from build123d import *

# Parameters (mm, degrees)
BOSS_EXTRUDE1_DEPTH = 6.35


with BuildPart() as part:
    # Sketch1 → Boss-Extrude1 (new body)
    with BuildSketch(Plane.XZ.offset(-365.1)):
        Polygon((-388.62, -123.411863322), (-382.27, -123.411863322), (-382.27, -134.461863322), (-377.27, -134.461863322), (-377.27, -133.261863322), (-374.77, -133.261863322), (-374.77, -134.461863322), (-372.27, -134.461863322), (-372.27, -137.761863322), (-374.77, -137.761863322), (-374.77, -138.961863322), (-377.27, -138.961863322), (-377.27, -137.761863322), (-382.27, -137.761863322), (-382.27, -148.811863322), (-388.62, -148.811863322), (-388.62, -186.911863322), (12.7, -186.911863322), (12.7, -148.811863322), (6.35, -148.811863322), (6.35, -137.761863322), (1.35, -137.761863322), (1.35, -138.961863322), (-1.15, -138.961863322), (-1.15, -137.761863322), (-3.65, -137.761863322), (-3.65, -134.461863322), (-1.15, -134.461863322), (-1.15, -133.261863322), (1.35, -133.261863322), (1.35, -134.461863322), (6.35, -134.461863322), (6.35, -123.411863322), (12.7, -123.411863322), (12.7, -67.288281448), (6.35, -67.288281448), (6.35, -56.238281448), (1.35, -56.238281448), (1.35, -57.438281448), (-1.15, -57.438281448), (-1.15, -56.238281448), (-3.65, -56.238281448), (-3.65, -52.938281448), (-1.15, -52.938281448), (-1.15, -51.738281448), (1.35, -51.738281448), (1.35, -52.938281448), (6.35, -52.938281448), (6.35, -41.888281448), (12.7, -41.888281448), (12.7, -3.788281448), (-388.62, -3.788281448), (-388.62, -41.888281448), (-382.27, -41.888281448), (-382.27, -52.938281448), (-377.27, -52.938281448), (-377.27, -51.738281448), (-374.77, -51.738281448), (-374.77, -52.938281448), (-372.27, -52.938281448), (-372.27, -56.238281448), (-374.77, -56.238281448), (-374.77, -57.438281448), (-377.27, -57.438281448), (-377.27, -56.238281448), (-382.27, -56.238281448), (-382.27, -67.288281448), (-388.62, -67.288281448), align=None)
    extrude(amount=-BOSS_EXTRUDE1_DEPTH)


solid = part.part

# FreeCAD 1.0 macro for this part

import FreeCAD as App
import Part
import Sketcher

V = App.Vector
Q = App.Units.Quantity


def add_polygon(sketch, points):
    """Adds a closed chain of lines whose ends are joined by coincident constraints."""
    first, n = sketch.GeometryCount, len(points)
    for a, b in zip(points, points[1:] + points[:1]):
        sketch.addGeometry(Part.LineSegment(App.Vector(*a, 0), App.Vector(*b, 0)), False)
    for i in range(n):
        sketch.addConstraint(Sketcher.Constraint("Coincident", first + i, 2, first + (i + 1) % n, 1))

doc = App.newDocument("Part")
params = doc.addObject("Spreadsheet::Sheet", "Params")
for row, (alias, value) in enumerate([
    ("sketch1_width", "5 mm"),
    ("sketch1_width2", "2.5 mm"),
    ("sketch1_height", "1.2 mm"),
    ("sketch1_height2", "3.3 mm"),
    ("sketch1_height3", "38.1 mm"),
    ("pad1_length", "6.35 mm"),
], start=1):
    params.set(f"A{row}", alias)
    params.set(f"B{row}", "=" + value)
    params.setAlias(f"B{row}", alias)

body = doc.addObject("PartDesign::Body", "Body")

# Sketch on XZ plane
sketch1 = body.newObject("Sketcher::SketchObject", "Sketch")
sketch1.AttachmentSupport = (doc.getObject("XZ_Plane"), [""])
sketch1.MapMode = "FlatFace"
sketch1.AttachmentOffset = App.Placement(V(0, 0, -365.1), App.Rotation())
add_polygon(sketch1, [(-388.62, -123.411863), (-382.27, -123.411863), (-382.27, -134.461863), (-377.27, -134.461863), (-377.27, -133.261863), (-374.77, -133.261863), (-374.77, -134.461863), (-372.27, -134.461863), (-372.27, -137.761863), (-374.77, -137.761863), (-374.77, -138.961863), (-377.27, -138.961863), (-377.27, -137.761863), (-382.27, -137.761863), (-382.27, -148.811863), (-388.62, -148.811863), (-388.62, -186.911863), (12.7, -186.911863), (12.7, -148.811863), (6.35, -148.811863), (6.35, -137.761863), (1.35, -137.761863), (1.35, -138.961863), (-1.15, -138.961863), (-1.15, -137.761863), (-3.65, -137.761863), (-3.65, -134.461863), (-1.15, -134.461863), (-1.15, -133.261863), (1.35, -133.261863), (1.35, -134.461863), (6.35, -134.461863), (6.35, -123.411863), (12.7, -123.411863), (12.7, -67.288281), (6.35, -67.288281), (6.35, -56.238281), (1.35, -56.238281), (1.35, -57.438281), (-1.15, -57.438281), (-1.15, -56.238281), (-3.65, -56.238281), (-3.65, -52.938281), (-1.15, -52.938281), (-1.15, -51.738281), (1.35, -51.738281), (1.35, -52.938281), (6.35, -52.938281), (6.35, -41.888281), (12.7, -41.888281), (12.7, -3.788281), (-388.62, -3.788281), (-388.62, -41.888281), (-382.27, -41.888281), (-382.27, -52.938281), (-377.27, -52.938281), (-377.27, -51.738281), (-374.77, -51.738281), (-374.77, -52.938281), (-372.27, -52.938281), (-372.27, -56.238281), (-374.77, -56.238281), (-374.77, -57.438281), (-377.27, -57.438281), (-377.27, -56.238281), (-382.27, -56.238281), (-382.27, -67.288281), (-388.62, -67.288281)])  # lines 0-67
sketch1.addConstraint(Sketcher.Constraint("Horizontal", 0))
sketch1.addConstraint(Sketcher.Constraint("Vertical", 1))
sketch1.addConstraint(Sketcher.Constraint("Horizontal", 2))
sketch1.addConstraint(Sketcher.Constraint("Vertical", 3))
sketch1.addConstraint(Sketcher.Constraint("Horizontal", 4))
sketch1.addConstraint(Sketcher.Constraint("Vertical", 5))
sketch1.addConstraint(Sketcher.Constraint("Horizontal", 6))
sketch1.addConstraint(Sketcher.Constraint("Vertical", 7))
sketch1.addConstraint(Sketcher.Constraint("Horizontal", 8))
sketch1.addConstraint(Sketcher.Constraint("Vertical", 9))
sketch1.addConstraint(Sketcher.Constraint("Horizontal", 10))
sketch1.addConstraint(Sketcher.Constraint("Vertical", 11))
sketch1.addConstraint(Sketcher.Constraint("Horizontal", 12))
sketch1.addConstraint(Sketcher.Constraint("Vertical", 13))
sketch1.addConstraint(Sketcher.Constraint("Horizontal", 14))
sketch1.addConstraint(Sketcher.Constraint("Vertical", 15))
sketch1.addConstraint(Sketcher.Constraint("Horizontal", 16))
sketch1.addConstraint(Sketcher.Constraint("Vertical", 17))
sketch1.addConstraint(Sketcher.Constraint("Horizontal", 18))
sketch1.addConstraint(Sketcher.Constraint("Vertical", 19))
sketch1.addConstraint(Sketcher.Constraint("Horizontal", 20))
sketch1.addConstraint(Sketcher.Constraint("Vertical", 21))
sketch1.addConstraint(Sketcher.Constraint("Horizontal", 22))
sketch1.addConstraint(Sketcher.Constraint("Vertical", 23))
sketch1.addConstraint(Sketcher.Constraint("Horizontal", 24))
sketch1.addConstraint(Sketcher.Constraint("Vertical", 25))
sketch1.addConstraint(Sketcher.Constraint("Horizontal", 26))
sketch1.addConstraint(Sketcher.Constraint("Vertical", 27))
sketch1.addConstraint(Sketcher.Constraint("Horizontal", 28))
sketch1.addConstraint(Sketcher.Constraint("Vertical", 29))
sketch1.addConstraint(Sketcher.Constraint("Horizontal", 30))
sketch1.addConstraint(Sketcher.Constraint("Vertical", 31))
sketch1.addConstraint(Sketcher.Constraint("Horizontal", 32))
sketch1.addConstraint(Sketcher.Constraint("Vertical", 33))
sketch1.addConstraint(Sketcher.Constraint("Horizontal", 34))
sketch1.addConstraint(Sketcher.Constraint("Vertical", 35))
sketch1.addConstraint(Sketcher.Constraint("Horizontal", 36))
sketch1.addConstraint(Sketcher.Constraint("Vertical", 37))
sketch1.addConstraint(Sketcher.Constraint("Horizontal", 38))
sketch1.addConstraint(Sketcher.Constraint("Vertical", 39))
sketch1.addConstraint(Sketcher.Constraint("Horizontal", 40))
sketch1.addConstraint(Sketcher.Constraint("Vertical", 41))
sketch1.addConstraint(Sketcher.Constraint("Horizontal", 42))
sketch1.addConstraint(Sketcher.Constraint("Vertical", 43))
sketch1.addConstraint(Sketcher.Constraint("Horizontal", 44))
sketch1.addConstraint(Sketcher.Constraint("Vertical", 45))
sketch1.addConstraint(Sketcher.Constraint("Horizontal", 46))
sketch1.addConstraint(Sketcher.Constraint("Vertical", 47))
sketch1.addConstraint(Sketcher.Constraint("Horizontal", 48))
sketch1.addConstraint(Sketcher.Constraint("Vertical", 49))
sketch1.addConstraint(Sketcher.Constraint("Horizontal", 50))
sketch1.addConstraint(Sketcher.Constraint("Vertical", 51))
sketch1.addConstraint(Sketcher.Constraint("Horizontal", 52))
sketch1.addConstraint(Sketcher.Constraint("Vertical", 53))
sketch1.addConstraint(Sketcher.Constraint("Horizontal", 54))
sketch1.addConstraint(Sketcher.Constraint("Vertical", 55))
sketch1.addConstraint(Sketcher.Constraint("Horizontal", 56))
sketch1.addConstraint(Sketcher.Constraint("Vertical", 57))
sketch1.addConstraint(Sketcher.Constraint("Horizontal", 58))
sketch1.addConstraint(Sketcher.Constraint("Vertical", 59))
sketch1.addConstraint(Sketcher.Constraint("Horizontal", 60))
sketch1.addConstraint(Sketcher.Constraint("Vertical", 61))
sketch1.addConstraint(Sketcher.Constraint("Horizontal", 62))
sketch1.addConstraint(Sketcher.Constraint("Vertical", 63))
sketch1.addConstraint(Sketcher.Constraint("Horizontal", 64))
sketch1.addConstraint(Sketcher.Constraint("Vertical", 65))
sketch1.addConstraint(Sketcher.Constraint("Horizontal", 66))
sketch1.addConstraint(Sketcher.Constraint("Vertical", 67))
sketch1.addConstraint(Sketcher.Constraint("Horizontal", 2, 2, 5, 2))
sketch1.addConstraint(Sketcher.Constraint("Horizontal", 8, 2, 11, 2))
sketch1.addConstraint(Sketcher.Constraint("Horizontal", 14, 2, 17, 2))
sketch1.addConstraint(Sketcher.Constraint("Horizontal", 12, 2, 19, 2))
sketch1.addConstraint(Sketcher.Constraint("Horizontal", 10, 2, 21, 2))
sketch1.addConstraint(Sketcher.Constraint("Horizontal", 20, 2, 23, 2))
sketch1.addConstraint(Sketcher.Constraint("Horizontal", 6, 2, 25, 2))
sketch1.addConstraint(Sketcher.Constraint("Horizontal", 4, 2, 27, 2))
sketch1.addConstraint(Sketcher.Constraint("Horizontal", 26, 2, 29, 2))
sketch1.addConstraint(Sketcher.Constraint("Horizontal", 0, 2, 31, 2))
sketch1.addConstraint(Sketcher.Constraint("Horizontal", 36, 2, 39, 2))
sketch1.addConstraint(Sketcher.Constraint("Horizontal", 42, 2, 45, 2))
sketch1.addConstraint(Sketcher.Constraint("Horizontal", 48, 2, 51, 2))
sketch1.addConstraint(Sketcher.Constraint("Horizontal", 46, 2, 53, 2))
sketch1.addConstraint(Sketcher.Constraint("Horizontal", 44, 2, 55, 2))
sketch1.addConstraint(Sketcher.Constraint("Horizontal", 54, 2, 57, 2))
sketch1.addConstraint(Sketcher.Constraint("Horizontal", 40, 2, 59, 2))
sketch1.addConstraint(Sketcher.Constraint("Horizontal", 38, 2, 61, 2))
sketch1.addConstraint(Sketcher.Constraint("Horizontal", 60, 2, 63, 2))
sketch1.addConstraint(Sketcher.Constraint("Horizontal", 34, 2, 65, 2))
sketch1.addConstraint(Sketcher.Constraint("Vertical", 5, 2, 8, 2))
sketch1.addConstraint(Sketcher.Constraint("Vertical", 3, 2, 10, 2))
sketch1.addConstraint(Sketcher.Constraint("Vertical", 1, 2, 12, 2))
sketch1.addConstraint(Sketcher.Constraint("Vertical", 23, 2, 26, 2))
sketch1.addConstraint(Sketcher.Constraint("Vertical", 21, 2, 28, 2))
sketch1.addConstraint(Sketcher.Constraint("Vertical", 19, 2, 30, 2))
sketch1.addConstraint(Sketcher.Constraint("Vertical", 17, 2, 32, 2))
sketch1.addConstraint(Sketcher.Constraint("Vertical", 31, 2, 34, 2))
sketch1.addConstraint(Sketcher.Constraint("Vertical", 29, 2, 36, 2))
sketch1.addConstraint(Sketcher.Constraint("Vertical", 27, 2, 38, 2))
sketch1.addConstraint(Sketcher.Constraint("Vertical", 25, 2, 40, 2))
sketch1.addConstraint(Sketcher.Constraint("Vertical", 39, 2, 42, 2))
sketch1.addConstraint(Sketcher.Constraint("Vertical", 37, 2, 44, 2))
sketch1.addConstraint(Sketcher.Constraint("Vertical", 35, 2, 46, 2))
sketch1.addConstraint(Sketcher.Constraint("Vertical", 33, 2, 48, 2))
sketch1.addConstraint(Sketcher.Constraint("Vertical", 15, 2, 50, 2))
sketch1.addConstraint(Sketcher.Constraint("Vertical", 13, 2, 52, 2))
sketch1.addConstraint(Sketcher.Constraint("Vertical", 11, 2, 54, 2))
sketch1.addConstraint(Sketcher.Constraint("Vertical", 9, 2, 56, 2))
sketch1.addConstraint(Sketcher.Constraint("Vertical", 7, 2, 58, 2))
sketch1.addConstraint(Sketcher.Constraint("Vertical", 57, 2, 60, 2))
sketch1.addConstraint(Sketcher.Constraint("Vertical", 55, 2, 62, 2))
sketch1.addConstraint(Sketcher.Constraint("Vertical", 53, 2, 64, 2))
sketch1.addConstraint(Sketcher.Constraint("Vertical", 51, 2, 66, 2))
sketch1.addConstraint(Sketcher.Constraint("Equal", 4, 6))
sketch1.addConstraint(Sketcher.Constraint("Equal", 14, 18))
sketch1.addConstraint(Sketcher.Constraint("Equal", 12, 20))
sketch1.addConstraint(Sketcher.Constraint("Equal", 10, 22))
sketch1.addConstraint(Sketcher.Constraint("Equal", 22, 24))
sketch1.addConstraint(Sketcher.Constraint("Equal", 5, 9))
sketch1.addConstraint(Sketcher.Constraint("Equal", 1, 13))
sketch1.addConstraint(Sketcher.Constraint("Equal", 31, 35))
sketch1.addConstraint(Sketcher.Constraint("Equal", 29, 37))
sketch1.addConstraint(Sketcher.Constraint("Equal", 25, 41))
sketch1.addConstraint(Sketcher.Constraint("Equal", 39, 43))
sketch1.addConstraint(Sketcher.Constraint("Equal", 35, 47))
sketch1.addConstraint(Sketcher.Constraint("Equal", 17, 49))
sketch1.addConstraint(Sketcher.Constraint("DistanceX", 2, 1, 2, 2, Q("5 mm")))
sketch1.addConstraint(Sketcher.Constraint("DistanceX", 4, 1, 4, 2, Q("2.5 mm")))
sketch1.addConstraint(Sketcher.Constraint("DistanceY", 3, 1, 3, 2, Q("1.2 mm")))
sketch1.addConstraint(Sketcher.Constraint("DistanceY", 7, 2, 7, 1, Q("3.3 mm")))
sketch1.addConstraint(Sketcher.Constraint("DistanceY", 15, 2, 15, 1, Q("38.1 mm")))
sketch1.addConstraint(Sketcher.Constraint("DistanceX", 0, 1, 0, 2, Q("6.35 mm")))
sketch1.addConstraint(Sketcher.Constraint("DistanceX", 16, 1, 16, 2, Q("401.32 mm")))
sketch1.addConstraint(Sketcher.Constraint("DistanceY", 1, 2, 1, 1, Q("11.05 mm")))
sketch1.addConstraint(Sketcher.Constraint("DistanceX", -1, 1, 16, 2, Q("12.7 mm")))
sketch1.addConstraint(Sketcher.Constraint("DistanceY", 33, 1, 33, 2, Q("56.123582 mm")))
sketch1.addConstraint(Sketcher.Constraint("DistanceY", 33, 2, -1, 1, Q("67.288281 mm")))
sketch1.setExpression("Constraints[193]", "Params.sketch1_width")
sketch1.setExpression("Constraints[194]", "Params.sketch1_width2")
sketch1.setExpression("Constraints[195]", "Params.sketch1_height")
sketch1.setExpression("Constraints[196]", "Params.sketch1_height2")
sketch1.setExpression("Constraints[197]", "Params.sketch1_height3")
pad1 = body.newObject("PartDesign::Pad", "Pad")
pad1.Profile = sketch1
pad1.setExpression("Length", "Params.pad1_length")
pad1.Reversed = True

doc.recompute()
